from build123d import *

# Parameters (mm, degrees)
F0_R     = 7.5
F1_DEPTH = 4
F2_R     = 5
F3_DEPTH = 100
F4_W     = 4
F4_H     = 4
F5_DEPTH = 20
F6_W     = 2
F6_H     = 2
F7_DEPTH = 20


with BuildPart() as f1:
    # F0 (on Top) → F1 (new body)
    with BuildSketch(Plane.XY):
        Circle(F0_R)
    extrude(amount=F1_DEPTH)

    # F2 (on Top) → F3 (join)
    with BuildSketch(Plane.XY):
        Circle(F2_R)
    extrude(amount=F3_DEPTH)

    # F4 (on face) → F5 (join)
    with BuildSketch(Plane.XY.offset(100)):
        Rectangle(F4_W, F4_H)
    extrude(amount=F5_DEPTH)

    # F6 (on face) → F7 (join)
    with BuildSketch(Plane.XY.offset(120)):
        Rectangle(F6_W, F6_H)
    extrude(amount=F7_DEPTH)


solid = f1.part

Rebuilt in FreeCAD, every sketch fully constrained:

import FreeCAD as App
import Part
import Sketcher

V = App.Vector

doc = App.newDocument("Part")
body = doc.addObject("PartDesign::Body", "Body")

# Sketch on XY plane
sketch1 = doc.addObject("Sketcher::SketchObject", "Sketch")
body.addObject(sketch1)
sketch1.AttachmentSupport = (doc.XY_Plane, [""])
sketch1.MapMode = "FlatFace"
sketch1.addGeometry(Part.Circle(V(0, 0, 0), V(0, 0, 1), 8), False)
sketch1.addConstraint([
    Sketcher.Constraint("Coincident", 0, 3, -1, 1),
    Sketcher.Constraint("Diameter", 0, 15.0),
])
pad1 = doc.addObject("PartDesign::Pad", "Pad")
body.addObject(pad1)
pad1.Profile = sketch1
pad1.Length = 4

# Sketch on XY plane
sketch2 = doc.addObject("Sketcher::SketchObject", "Sketch001")
body.addObject(sketch2)
sketch2.AttachmentSupport = (doc.XY_Plane, [""])
sketch2.MapMode = "FlatFace"
sketch2.addGeometry(Part.Circle(V(0, 0, 0), V(0, 0, 1), 5), False)
sketch2.addConstraint([
    Sketcher.Constraint("Coincident", 0, 3, -1, 1),
    Sketcher.Constraint("Diameter", 0, 10.0),
])
pad2 = doc.addObject("PartDesign::Pad", "Pad001")
body.addObject(pad2)
pad2.Profile = sketch2
pad2.Length = 100

# Sketch on XY plane
sketch3 = doc.addObject("Sketcher::SketchObject", "Sketch002")
body.addObject(sketch3)
sketch3.AttachmentSupport = (doc.XY_Plane, [""])
sketch3.MapMode = "FlatFace"
sketch3.AttachmentOffset = App.Placement(V(0, 0, 100), App.Rotation())
sketch3.addGeometry([
    Part.LineSegment(V(-2, 2, 0), V(-2, -2, 0)),
    Part.LineSegment(V(-2, -2, 0), V(2, -2, 0)),
    Part.LineSegment(V(2, -2, 0), V(2, 2, 0)),
    Part.LineSegment(V(2, 2, 0), V(-2, 2, 0)),
], False)
sketch3.addConstraint([
    Sketcher.Constraint("Coincident", 0, 2, 1, 1),
    Sketcher.Constraint("Coincident", 1, 2, 2, 1),
    Sketcher.Constraint("Coincident", 2, 2, 3, 1),
    Sketcher.Constraint("Coincident", 3, 2, 0, 1),
    Sketcher.Constraint("Vertical", 0),
    Sketcher.Constraint("Horizontal", 1),
    Sketcher.Constraint("Vertical", 2),
    Sketcher.Constraint("Horizontal", 3),
    Sketcher.Constraint("Symmetric", 0, 2, 2, 2, -1, 1),
    Sketcher.Constraint("Equal", 3, 0),
    Sketcher.Constraint("DistanceX", 1, 1, 1, 2, 4.0),
])
pad3 = doc.addObject("PartDesign::Pad", "Pad002")
body.addObject(pad3)
pad3.Profile = sketch3
pad3.Length = 20

# Sketch on XY plane
sketch4 = doc.addObject("Sketcher::SketchObject", "Sketch003")
body.addObject(sketch4)
sketch4.AttachmentSupport = (doc.XY_Plane, [""])
sketch4.MapMode = "FlatFace"
sketch4.AttachmentOffset = App.Placement(V(0, 0, 120), App.Rotation())
sketch4.addGeometry([
    Part.LineSegment(V(-1, 1, 0), V(-1, -1, 0)),
    Part.LineSegment(V(-1, -1, 0), V(1, -1, 0)),
    Part.LineSegment(V(1, -1, 0), V(1, 1, 0)),
    Part.LineSegment(V(1, 1, 0), V(-1, 1, 0)),
], False)
sketch4.addConstraint([
    Sketcher.Constraint("Coincident", 0, 2, 1, 1),
    Sketcher.Constraint("Coincident", 1, 2, 2, 1),
    Sketcher.Constraint("Coincident", 2, 2, 3, 1),
    Sketcher.Constraint("Coincident", 3, 2, 0, 1),
    Sketcher.Constraint("Vertical", 0),
    Sketcher.Constraint("Horizontal", 1),
    Sketcher.Constraint("Vertical", 2),
    Sketcher.Constraint("Horizontal", 3),
    Sketcher.Constraint("Symmetric", 0, 2, 2, 2, -1, 1),
    Sketcher.Constraint("Equal", 3, 0),
    Sketcher.Constraint("DistanceX", 1, 1, 1, 2, 2.0),
])
pad4 = doc.addObject("PartDesign::Pad", "Pad003")
body.addObject(pad4)
pad4.Profile = sketch4
pad4.Length = 20

doc.recompute()
